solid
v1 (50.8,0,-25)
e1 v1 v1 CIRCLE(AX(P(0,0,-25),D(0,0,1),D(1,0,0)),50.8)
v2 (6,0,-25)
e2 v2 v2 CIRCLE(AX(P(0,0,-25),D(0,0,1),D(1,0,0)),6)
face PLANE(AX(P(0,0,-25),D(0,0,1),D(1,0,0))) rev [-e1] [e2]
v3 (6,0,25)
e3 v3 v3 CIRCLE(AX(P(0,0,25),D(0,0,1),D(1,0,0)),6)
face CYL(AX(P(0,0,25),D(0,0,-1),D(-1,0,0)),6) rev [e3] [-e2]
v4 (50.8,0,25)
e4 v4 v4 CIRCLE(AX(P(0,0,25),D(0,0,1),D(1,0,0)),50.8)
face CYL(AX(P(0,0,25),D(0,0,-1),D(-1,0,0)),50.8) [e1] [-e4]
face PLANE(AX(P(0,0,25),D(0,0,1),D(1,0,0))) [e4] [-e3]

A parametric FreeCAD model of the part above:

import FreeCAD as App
import Part
import Sketcher
from FreeCAD import Vector

doc = App.newDocument("Part")
params = doc.addObject("Spreadsheet::Sheet", "Params")
for row, (alias, value) in enumerate([
    ("sketch1_diameter", "12 mm"),
    ("sketch1_diameter2", "101.6 mm"),
    ("pad1_length", "50 mm"),
], start=1):
    params.set(f"A{row}", alias)
    params.set(f"B{row}", "=" + value)
    params.setAlias(f"B{row}", alias)

body = doc.addObject("PartDesign::Body", "Body")

# Sketch on XY plane
sketch1 = body.newObject("Sketcher::SketchObject", "Sketch")
sketch1.AttachmentSupport = (doc.getObject("XY_Plane"), [""])
sketch1.MapMode = "FlatFace"
sketch1.addGeometry(Part.Circle(Vector(0, 0, 0), Vector(0, 0, 1), 51), False)
sketch1.addGeometry(Part.Circle(Vector(0, 0, 0), Vector(0, 0, 1), 6), False)
sketch1.addConstraint(Sketcher.Constraint("Coincident", 0, 3, -1, 1))
sketch1.addConstraint(Sketcher.Constraint("Coincident", 1, 3, -1, 1))
sketch1.addConstraint(Sketcher.Constraint("Diameter", 1, 12.0))
sketch1.addConstraint(Sketcher.Constraint("Diameter", 0, 101.6))
sketch1.setExpression("Constraints[2]", "Params.sketch1_diameter")
sketch1.setExpression("Constraints[3]", "Params.sketch1_diameter2")
pad1 = body.newObject("PartDesign::Pad", "Pad")
pad1.Profile = sketch1
pad1.setExpression("Length", "Params.pad1_length")
pad1.Midplane = True

doc.recompute()
